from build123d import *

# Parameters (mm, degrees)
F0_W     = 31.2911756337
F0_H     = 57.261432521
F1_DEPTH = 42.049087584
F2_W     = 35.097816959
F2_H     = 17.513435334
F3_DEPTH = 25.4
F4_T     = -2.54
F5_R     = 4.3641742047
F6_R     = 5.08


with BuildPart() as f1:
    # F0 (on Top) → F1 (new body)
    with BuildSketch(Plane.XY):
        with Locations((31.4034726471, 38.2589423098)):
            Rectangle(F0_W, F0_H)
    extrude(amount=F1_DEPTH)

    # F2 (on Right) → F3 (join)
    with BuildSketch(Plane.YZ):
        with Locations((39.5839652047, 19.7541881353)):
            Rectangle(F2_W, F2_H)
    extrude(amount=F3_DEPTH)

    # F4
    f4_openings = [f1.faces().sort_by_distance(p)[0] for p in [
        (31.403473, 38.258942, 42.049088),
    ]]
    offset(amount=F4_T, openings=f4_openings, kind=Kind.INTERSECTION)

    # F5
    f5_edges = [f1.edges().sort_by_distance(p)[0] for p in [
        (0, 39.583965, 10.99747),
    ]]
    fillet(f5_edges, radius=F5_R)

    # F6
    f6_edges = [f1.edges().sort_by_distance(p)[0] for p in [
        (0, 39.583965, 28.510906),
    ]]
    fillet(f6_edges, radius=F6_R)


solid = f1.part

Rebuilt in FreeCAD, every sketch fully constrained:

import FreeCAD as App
import Part
import Sketcher
from FreeCAD import Vector


def edges_at(feature, points):
    """Names of the edges that pass closest to the given points."""
    edges = feature.Shape.Edges
    near = lambda p: min(range(len(edges)), key=lambda i: edges[i].distToShape(Part.Vertex(*p))[0])
    return sorted({f"Edge{near(p) + 1}" for p in points})


def faces_at(feature, points):
    """Names of the faces that lie closest to the given points."""
    faces = feature.Shape.Faces
    near = lambda p: min(range(len(faces)), key=lambda i: faces[i].distToShape(Part.Vertex(*p))[0])
    return sorted({f"Face{near(p) + 1}" for p in points})

doc = App.newDocument("Part")
params = doc.addObject("Spreadsheet::Sheet", "Params")
for row, (alias, value) in enumerate([
    ("pad1_length", "42.049088 mm"),
    ("pad2_length", "1 in"),
    ("thickness_wall", "0.1 in"),
    ("fillet_radius", "4.364174 mm"),
    ("fillet2_radius", "0.2 in"),
], start=1):
    params.set(f"A{row}", alias)
    params.set(f"B{row}", "=" + value)
    params.setAlias(f"B{row}", alias)

body = doc.addObject("PartDesign::Body", "Body")

sketch1 = body.newObject("Sketcher::SketchObject", "Sketch")
sketch1.AttachmentSupport = (doc.getObject("XY_Plane"), [""])
sketch1.MapMode = "FlatFace"
sketch1.addGeometry([
    Part.LineSegment(Vector(15.757885, 66.889659, 0), Vector(15.757885, 9.628226, 0)),
    Part.LineSegment(Vector(15.757885, 9.628226, 0), Vector(47.04906, 9.628226, 0)),
    Part.LineSegment(Vector(47.04906, 9.628226, 0), Vector(47.04906, 66.889659, 0)),
    Part.LineSegment(Vector(47.04906, 66.889659, 0), Vector(15.757885, 66.889659, 0)),
], False)
sketch1.addConstraint([
    Sketcher.Constraint("Coincident", 0, 2, 1, 1),
    Sketcher.Constraint("Coincident", 1, 2, 2, 1),
    Sketcher.Constraint("Coincident", 2, 2, 3, 1),
    Sketcher.Constraint("Coincident", 3, 2, 0, 1),
    Sketcher.Constraint("Vertical", 0),
    Sketcher.Constraint("Horizontal", 1),
    Sketcher.Constraint("Vertical", 2),
    Sketcher.Constraint("Horizontal", 3),
    Sketcher.Constraint("DistanceX", 1, 1, 1, 2, 31.291176),
    Sketcher.Constraint("DistanceY", 0, 2, 0, 1, 57.261433),
    Sketcher.Constraint("DistanceX", -1, 1, 1, 2, 47.04906),
    Sketcher.Constraint("DistanceY", -1, 1, 2, 2, 66.889659),
])
pad1 = body.newObject("PartDesign::Pad", "Pad")
pad1.Profile = sketch1
pad1.setExpression("Length", "Params.pad1_length")

sketch2 = body.newObject("Sketcher::SketchObject", "Sketch001")
sketch2.AttachmentSupport = (doc.getObject("YZ_Plane"), [""])
sketch2.MapMode = "FlatFace"
sketch2.addGeometry([
    Part.LineSegment(Vector(22.035057, 28.510906, 0), Vector(22.035057, 10.99747, 0)),
    Part.LineSegment(Vector(22.035057, 10.99747, 0), Vector(57.132874, 10.99747, 0)),
    Part.LineSegment(Vector(57.132874, 10.99747, 0), Vector(57.132874, 28.510906, 0)),
    Part.LineSegment(Vector(57.132874, 28.510906, 0), Vector(22.035057, 28.510906, 0)),
], False)
sketch2.addConstraint([
    Sketcher.Constraint("Coincident", 0, 2, 1, 1),
    Sketcher.Constraint("Coincident", 1, 2, 2, 1),
    Sketcher.Constraint("Coincident", 2, 2, 3, 1),
    Sketcher.Constraint("Coincident", 3, 2, 0, 1),
    Sketcher.Constraint("Vertical", 0),
    Sketcher.Constraint("Horizontal", 1),
    Sketcher.Constraint("Vertical", 2),
    Sketcher.Constraint("Horizontal", 3),
    Sketcher.Constraint("DistanceX", 1, 1, 1, 2, 35.097817),
    Sketcher.Constraint("DistanceY", 0, 2, 0, 1, 17.513435),
    Sketcher.Constraint("DistanceY", -1, 1, 0, 2, 10.99747),
    Sketcher.Constraint("DistanceX", -1, 1, 0, 2, 22.035057),
])
pad2 = body.newObject("PartDesign::Pad", "Pad001")
pad2.Profile = sketch2
pad2.setExpression("Length", "Params.pad2_length")
doc.recompute()

thickness = body.newObject("PartDesign::Thickness", "Thickness")
thickness.Base = (pad2, faces_at(pad2, [(31.403, 38.259, 42.049)]))
thickness.setExpression("Value", "Params.thickness_wall")
thickness.Reversed = True
thickness.Join = "Intersection"
doc.recompute()

fillet = body.newObject("PartDesign::Fillet", "Fillet")
fillet.Base = (thickness, edges_at(thickness, [(0, 39.584, 10.997)]))
fillet.setExpression("Radius", "Params.fillet_radius")
doc.recompute()

fillet2 = body.newObject("PartDesign::Fillet", "Fillet001")
fillet2.Base = (fillet, edges_at(fillet, [(0, 39.584, 28.511)]))
fillet2.setExpression("Radius", "Params.fillet2_radius")

doc.recompute()
